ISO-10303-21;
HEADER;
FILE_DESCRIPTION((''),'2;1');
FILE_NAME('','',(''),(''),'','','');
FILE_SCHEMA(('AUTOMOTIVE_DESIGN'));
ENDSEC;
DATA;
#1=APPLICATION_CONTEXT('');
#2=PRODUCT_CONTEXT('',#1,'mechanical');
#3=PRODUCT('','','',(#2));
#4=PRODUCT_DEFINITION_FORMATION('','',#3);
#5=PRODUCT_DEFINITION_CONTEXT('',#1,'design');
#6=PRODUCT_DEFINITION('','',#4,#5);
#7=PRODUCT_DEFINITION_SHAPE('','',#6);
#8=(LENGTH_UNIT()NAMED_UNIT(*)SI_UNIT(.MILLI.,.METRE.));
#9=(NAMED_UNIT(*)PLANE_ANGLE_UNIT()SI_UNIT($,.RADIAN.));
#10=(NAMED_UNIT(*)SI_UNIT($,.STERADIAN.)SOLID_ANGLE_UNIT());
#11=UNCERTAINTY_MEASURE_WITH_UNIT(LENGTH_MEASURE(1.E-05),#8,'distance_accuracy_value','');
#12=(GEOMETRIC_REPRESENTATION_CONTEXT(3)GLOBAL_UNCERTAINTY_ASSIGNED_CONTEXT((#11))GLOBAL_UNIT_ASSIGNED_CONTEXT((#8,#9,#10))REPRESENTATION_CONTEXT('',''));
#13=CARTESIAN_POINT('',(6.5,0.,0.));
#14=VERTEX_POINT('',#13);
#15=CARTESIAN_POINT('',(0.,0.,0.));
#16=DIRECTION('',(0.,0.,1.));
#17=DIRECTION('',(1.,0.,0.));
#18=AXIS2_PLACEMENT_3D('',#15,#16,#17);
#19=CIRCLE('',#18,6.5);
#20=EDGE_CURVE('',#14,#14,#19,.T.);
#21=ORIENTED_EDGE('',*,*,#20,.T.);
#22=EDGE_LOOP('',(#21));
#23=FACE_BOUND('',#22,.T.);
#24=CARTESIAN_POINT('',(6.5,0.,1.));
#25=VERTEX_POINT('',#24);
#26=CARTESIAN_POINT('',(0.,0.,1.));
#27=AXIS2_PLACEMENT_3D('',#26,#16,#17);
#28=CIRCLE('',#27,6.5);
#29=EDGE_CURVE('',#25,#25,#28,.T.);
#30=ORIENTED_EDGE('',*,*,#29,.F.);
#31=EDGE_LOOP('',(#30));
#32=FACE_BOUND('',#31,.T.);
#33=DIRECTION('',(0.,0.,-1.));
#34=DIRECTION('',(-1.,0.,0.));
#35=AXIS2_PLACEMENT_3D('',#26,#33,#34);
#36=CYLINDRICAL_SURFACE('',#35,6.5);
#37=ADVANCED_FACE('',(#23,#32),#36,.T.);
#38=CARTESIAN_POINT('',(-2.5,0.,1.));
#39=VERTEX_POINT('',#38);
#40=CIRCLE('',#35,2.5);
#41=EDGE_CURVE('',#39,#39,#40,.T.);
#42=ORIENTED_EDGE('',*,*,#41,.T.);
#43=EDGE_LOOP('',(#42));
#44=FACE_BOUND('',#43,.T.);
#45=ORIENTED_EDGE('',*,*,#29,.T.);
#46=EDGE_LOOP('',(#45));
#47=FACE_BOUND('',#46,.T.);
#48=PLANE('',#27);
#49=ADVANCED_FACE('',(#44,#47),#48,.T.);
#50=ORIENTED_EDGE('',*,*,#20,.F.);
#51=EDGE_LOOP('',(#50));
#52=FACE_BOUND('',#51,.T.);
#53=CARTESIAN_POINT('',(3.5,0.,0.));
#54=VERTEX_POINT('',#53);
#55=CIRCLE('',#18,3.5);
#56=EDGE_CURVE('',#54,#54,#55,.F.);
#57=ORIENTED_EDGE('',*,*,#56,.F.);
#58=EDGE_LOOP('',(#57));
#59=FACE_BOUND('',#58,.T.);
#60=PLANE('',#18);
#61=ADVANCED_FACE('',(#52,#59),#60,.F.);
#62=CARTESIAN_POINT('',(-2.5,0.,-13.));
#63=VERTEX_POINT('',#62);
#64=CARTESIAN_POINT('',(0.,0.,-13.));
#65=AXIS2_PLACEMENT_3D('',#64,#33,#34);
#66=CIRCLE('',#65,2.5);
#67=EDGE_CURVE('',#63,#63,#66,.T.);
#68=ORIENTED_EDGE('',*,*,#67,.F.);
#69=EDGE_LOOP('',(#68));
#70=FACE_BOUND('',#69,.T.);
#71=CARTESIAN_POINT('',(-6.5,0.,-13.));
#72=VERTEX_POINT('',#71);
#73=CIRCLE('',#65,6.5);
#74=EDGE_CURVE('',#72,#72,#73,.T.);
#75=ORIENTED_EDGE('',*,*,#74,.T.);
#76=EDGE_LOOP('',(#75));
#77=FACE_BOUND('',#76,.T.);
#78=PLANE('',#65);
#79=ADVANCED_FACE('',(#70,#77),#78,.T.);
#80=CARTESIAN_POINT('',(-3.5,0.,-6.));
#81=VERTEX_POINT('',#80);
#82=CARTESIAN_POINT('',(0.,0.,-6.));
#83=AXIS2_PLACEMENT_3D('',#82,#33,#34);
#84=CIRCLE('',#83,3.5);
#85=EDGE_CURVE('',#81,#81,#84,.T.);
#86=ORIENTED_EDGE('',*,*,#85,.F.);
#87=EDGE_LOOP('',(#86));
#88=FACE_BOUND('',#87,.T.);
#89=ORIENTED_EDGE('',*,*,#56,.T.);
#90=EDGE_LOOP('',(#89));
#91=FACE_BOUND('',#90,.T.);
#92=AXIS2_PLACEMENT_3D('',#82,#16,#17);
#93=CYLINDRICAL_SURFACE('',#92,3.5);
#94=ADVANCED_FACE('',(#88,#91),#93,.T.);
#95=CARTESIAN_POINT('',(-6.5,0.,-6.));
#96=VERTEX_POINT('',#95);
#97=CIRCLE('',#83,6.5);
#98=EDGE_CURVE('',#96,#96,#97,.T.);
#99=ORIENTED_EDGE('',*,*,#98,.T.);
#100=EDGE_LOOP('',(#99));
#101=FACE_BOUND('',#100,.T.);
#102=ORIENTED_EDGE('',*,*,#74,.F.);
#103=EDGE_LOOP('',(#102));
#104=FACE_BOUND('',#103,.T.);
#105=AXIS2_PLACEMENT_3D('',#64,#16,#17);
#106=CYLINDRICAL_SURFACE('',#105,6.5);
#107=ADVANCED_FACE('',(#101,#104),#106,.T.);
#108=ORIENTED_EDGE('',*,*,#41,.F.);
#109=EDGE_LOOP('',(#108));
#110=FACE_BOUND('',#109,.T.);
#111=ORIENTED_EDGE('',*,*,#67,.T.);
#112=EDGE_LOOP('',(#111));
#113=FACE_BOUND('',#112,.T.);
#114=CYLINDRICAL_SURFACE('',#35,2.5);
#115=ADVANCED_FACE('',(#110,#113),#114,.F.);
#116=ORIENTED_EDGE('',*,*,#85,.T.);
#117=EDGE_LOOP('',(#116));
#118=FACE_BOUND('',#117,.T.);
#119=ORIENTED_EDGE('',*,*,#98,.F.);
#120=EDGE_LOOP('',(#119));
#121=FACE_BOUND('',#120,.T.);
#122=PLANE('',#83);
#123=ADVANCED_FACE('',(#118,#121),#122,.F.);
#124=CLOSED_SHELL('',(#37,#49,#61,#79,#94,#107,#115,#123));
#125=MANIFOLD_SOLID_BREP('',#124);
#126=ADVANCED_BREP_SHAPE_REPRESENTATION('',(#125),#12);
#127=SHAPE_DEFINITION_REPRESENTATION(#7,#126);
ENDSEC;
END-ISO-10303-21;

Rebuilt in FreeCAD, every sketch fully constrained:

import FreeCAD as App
import Part
import Sketcher
Q = App.Units.Quantity

doc = App.newDocument("Part")
body = doc.addObject("PartDesign::Body", "Body")

# Sketch on XY plane
sketch1 = body.newObject("Sketcher::SketchObject", "Sketch")
sketch1.AttachmentSupport = (doc.getObject("XY_Plane"), [""])
sketch1.MapMode = "FlatFace"
sketch1.addGeometry(Part.Circle(App.Vector(0, 0, 0), App.Vector(0, 0, 1), 6), False)
sketch1.addConstraint([
    Sketcher.Constraint("Coincident", 0, 3, -1, 1),
    Sketcher.Constraint("Diameter", 0, Q("13 mm")),
])
pad1 = body.newObject("PartDesign::Pad", "Pad")
pad1.Profile = sketch1
pad1.Length = 1

# Sketch on XY plane
sketch2 = body.newObject("Sketcher::SketchObject", "Sketch001")
sketch2.AttachmentSupport = (doc.getObject("XY_Plane"), [""])
sketch2.MapMode = "FlatFace"
sketch2.addGeometry(Part.Circle(App.Vector(0, 0, 0), App.Vector(0, 0, 1), 3.5), False)
sketch2.addConstraint([
    Sketcher.Constraint("Coincident", 0, 3, -1, 1),
    Sketcher.Constraint("Diameter", 0, Q("7 mm")),
])
pad2 = body.newObject("PartDesign::Pad", "Pad001")
pad2.Profile = sketch2
pad2.Length = 6
pad2.Reversed = True

# Sketch on XY plane
sketch3 = body.newObject("Sketcher::SketchObject", "Sketch002")
sketch3.AttachmentSupport = (doc.getObject("XY_Plane"), [""])
sketch3.MapMode = "FlatFace"
sketch3.AttachmentOffset = App.Placement(App.Vector(0, 0, -13), App.Rotation())
sketch3.addGeometry(Part.Circle(App.Vector(0, 0, 0), App.Vector(0, 0, 1), 6), False)
sketch3.addConstraint([
    Sketcher.Constraint("Coincident", 0, 3, -1, 1),
    Sketcher.Constraint("Diameter", 0, Q("13 mm")),
])
pad3 = body.newObject("PartDesign::Pad", "Pad002")
pad3.Profile = sketch3
pad3.Length = 7

# Sketch on XY plane
sketch4 = body.newObject("Sketcher::SketchObject", "Sketch003")
sketch4.AttachmentSupport = (doc.getObject("XY_Plane"), [""])
sketch4.MapMode = "FlatFace"
sketch4.AttachmentOffset = App.Placement(App.Vector(0, 0, -13), App.Rotation())
sketch4.addGeometry(Part.Circle(App.Vector(0, 0, 0), App.Vector(0, 0, 1), 2.5), False)
sketch4.addConstraint([
    Sketcher.Constraint("Coincident", 0, 3, -1, 1),
    Sketcher.Constraint("Diameter", 0, Q("5 mm")),
])
pocket1 = body.newObject("PartDesign::Pocket", "Pocket")
pocket1.Profile = sketch4
pocket1.Type = "ThroughAll"
pocket1.Reversed = True

doc.recompute()
